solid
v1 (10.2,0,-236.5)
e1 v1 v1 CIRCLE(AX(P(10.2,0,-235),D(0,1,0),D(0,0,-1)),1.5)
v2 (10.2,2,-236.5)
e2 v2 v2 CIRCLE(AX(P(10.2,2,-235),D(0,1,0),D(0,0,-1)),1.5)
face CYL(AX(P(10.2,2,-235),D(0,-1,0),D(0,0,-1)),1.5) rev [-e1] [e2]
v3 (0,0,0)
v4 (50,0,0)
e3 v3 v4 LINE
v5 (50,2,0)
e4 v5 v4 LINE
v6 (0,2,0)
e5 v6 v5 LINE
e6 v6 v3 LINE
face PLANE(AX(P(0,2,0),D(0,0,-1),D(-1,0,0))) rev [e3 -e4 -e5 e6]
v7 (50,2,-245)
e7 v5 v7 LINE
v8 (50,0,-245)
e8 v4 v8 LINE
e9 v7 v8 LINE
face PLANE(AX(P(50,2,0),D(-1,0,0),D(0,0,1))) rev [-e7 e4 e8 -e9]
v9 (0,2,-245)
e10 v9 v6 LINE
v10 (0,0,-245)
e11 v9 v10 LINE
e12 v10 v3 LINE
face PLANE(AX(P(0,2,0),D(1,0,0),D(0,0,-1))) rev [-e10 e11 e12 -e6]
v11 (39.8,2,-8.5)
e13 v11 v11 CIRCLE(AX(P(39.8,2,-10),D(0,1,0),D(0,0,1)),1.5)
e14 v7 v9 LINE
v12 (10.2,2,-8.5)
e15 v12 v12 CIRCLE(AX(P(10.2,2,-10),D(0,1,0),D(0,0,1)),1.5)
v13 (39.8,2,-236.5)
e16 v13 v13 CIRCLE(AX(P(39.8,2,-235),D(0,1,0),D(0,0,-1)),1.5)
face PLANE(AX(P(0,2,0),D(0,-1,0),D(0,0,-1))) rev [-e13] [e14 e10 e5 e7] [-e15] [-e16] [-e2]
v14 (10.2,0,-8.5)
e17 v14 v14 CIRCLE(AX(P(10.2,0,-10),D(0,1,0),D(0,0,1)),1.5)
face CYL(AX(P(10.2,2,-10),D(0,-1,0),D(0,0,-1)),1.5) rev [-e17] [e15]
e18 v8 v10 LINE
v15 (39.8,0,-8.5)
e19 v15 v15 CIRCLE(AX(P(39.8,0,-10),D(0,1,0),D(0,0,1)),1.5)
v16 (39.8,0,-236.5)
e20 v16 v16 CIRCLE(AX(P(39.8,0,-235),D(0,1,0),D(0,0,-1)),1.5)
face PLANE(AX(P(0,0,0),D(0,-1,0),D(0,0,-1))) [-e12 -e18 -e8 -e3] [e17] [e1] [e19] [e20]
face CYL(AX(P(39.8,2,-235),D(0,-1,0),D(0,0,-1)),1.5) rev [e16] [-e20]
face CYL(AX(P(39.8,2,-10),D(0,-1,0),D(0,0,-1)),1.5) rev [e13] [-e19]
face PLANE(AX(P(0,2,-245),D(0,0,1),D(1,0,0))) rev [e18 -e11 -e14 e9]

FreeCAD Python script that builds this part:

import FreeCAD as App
import Part
import Sketcher

doc = App.newDocument("Part")
body = doc.addObject("PartDesign::Body", "Body")

# Sketch on XZ plane
sketch1 = body.newObject("Sketcher::SketchObject", "Sketch")
sketch1.AttachmentSupport = (doc.getObject("XZ_Plane"), [""])
sketch1.MapMode = "FlatFace"
sketch1.addGeometry([
    Part.LineSegment(App.Vector(0, -245, 0), App.Vector(0, 0, 0)),  # 0
    Part.LineSegment(App.Vector(0, 0, 0), App.Vector(50, 0, 0)),  # 1
    Part.LineSegment(App.Vector(50, 0, 0), App.Vector(50, -245, 0)),  # 2
    Part.LineSegment(App.Vector(50, -245, 0), App.Vector(0, -245, 0)),  # 3
    Part.Circle(App.Vector(10.2, -10, 0), App.Vector(0, 0, 1), 1.5),  # 4
    Part.Circle(App.Vector(39.8, -10, 0), App.Vector(0, 0, 1), 1.5),  # 5
    Part.Circle(App.Vector(10.2, -235, 0), App.Vector(0, 0, 1), 1.5),  # 6
    Part.Circle(App.Vector(39.8, -235, 0), App.Vector(0, 0, 1), 1.5),  # 7
], False)
sketch1.addConstraint([
    Sketcher.Constraint("Coincident", 0, 2, 1, 1),
    Sketcher.Constraint("Coincident", 1, 2, 2, 1),
    Sketcher.Constraint("Coincident", 2, 2, 3, 1),
    Sketcher.Constraint("Coincident", 3, 2, 0, 1),
    Sketcher.Constraint("Vertical", 0),
    Sketcher.Constraint("Horizontal", 1),
    Sketcher.Constraint("Vertical", 2),
    Sketcher.Constraint("Horizontal", 3),
    Sketcher.Constraint("Coincident", 0, 2, -1, 1),
    Sketcher.Constraint("Equal", 4, 5),
    Sketcher.Constraint("Equal", 5, 6),
    Sketcher.Constraint("Equal", 6, 7),
    Sketcher.Constraint("Horizontal", 4, 3, 5, 3),
    Sketcher.Constraint("Horizontal", 6, 3, 7, 3),
    Sketcher.Constraint("Vertical", 4, 3, 6, 3),
    Sketcher.Constraint("Vertical", 5, 3, 7, 3),
    Sketcher.Constraint("Diameter", 4, 3.0),
    Sketcher.Constraint("DistanceX", 1, 1, 1, 2, 50.0),
    Sketcher.Constraint("DistanceY", 0, 1, 0, 2, 245.0),
    Sketcher.Constraint("DistanceY", 4, 3, -1, 1, 10.0),
    Sketcher.Constraint("DistanceY", 6, 3, -1, 1, 235.0),
    Sketcher.Constraint("DistanceX", -1, 1, 4, 3, 10.2),
    Sketcher.Constraint("DistanceX", -1, 1, 5, 3, 39.8),
])
pad1 = body.newObject("PartDesign::Pad", "Pad")
pad1.Profile = sketch1
pad1.Length = 2
pad1.Reversed = True

doc.recompute()
